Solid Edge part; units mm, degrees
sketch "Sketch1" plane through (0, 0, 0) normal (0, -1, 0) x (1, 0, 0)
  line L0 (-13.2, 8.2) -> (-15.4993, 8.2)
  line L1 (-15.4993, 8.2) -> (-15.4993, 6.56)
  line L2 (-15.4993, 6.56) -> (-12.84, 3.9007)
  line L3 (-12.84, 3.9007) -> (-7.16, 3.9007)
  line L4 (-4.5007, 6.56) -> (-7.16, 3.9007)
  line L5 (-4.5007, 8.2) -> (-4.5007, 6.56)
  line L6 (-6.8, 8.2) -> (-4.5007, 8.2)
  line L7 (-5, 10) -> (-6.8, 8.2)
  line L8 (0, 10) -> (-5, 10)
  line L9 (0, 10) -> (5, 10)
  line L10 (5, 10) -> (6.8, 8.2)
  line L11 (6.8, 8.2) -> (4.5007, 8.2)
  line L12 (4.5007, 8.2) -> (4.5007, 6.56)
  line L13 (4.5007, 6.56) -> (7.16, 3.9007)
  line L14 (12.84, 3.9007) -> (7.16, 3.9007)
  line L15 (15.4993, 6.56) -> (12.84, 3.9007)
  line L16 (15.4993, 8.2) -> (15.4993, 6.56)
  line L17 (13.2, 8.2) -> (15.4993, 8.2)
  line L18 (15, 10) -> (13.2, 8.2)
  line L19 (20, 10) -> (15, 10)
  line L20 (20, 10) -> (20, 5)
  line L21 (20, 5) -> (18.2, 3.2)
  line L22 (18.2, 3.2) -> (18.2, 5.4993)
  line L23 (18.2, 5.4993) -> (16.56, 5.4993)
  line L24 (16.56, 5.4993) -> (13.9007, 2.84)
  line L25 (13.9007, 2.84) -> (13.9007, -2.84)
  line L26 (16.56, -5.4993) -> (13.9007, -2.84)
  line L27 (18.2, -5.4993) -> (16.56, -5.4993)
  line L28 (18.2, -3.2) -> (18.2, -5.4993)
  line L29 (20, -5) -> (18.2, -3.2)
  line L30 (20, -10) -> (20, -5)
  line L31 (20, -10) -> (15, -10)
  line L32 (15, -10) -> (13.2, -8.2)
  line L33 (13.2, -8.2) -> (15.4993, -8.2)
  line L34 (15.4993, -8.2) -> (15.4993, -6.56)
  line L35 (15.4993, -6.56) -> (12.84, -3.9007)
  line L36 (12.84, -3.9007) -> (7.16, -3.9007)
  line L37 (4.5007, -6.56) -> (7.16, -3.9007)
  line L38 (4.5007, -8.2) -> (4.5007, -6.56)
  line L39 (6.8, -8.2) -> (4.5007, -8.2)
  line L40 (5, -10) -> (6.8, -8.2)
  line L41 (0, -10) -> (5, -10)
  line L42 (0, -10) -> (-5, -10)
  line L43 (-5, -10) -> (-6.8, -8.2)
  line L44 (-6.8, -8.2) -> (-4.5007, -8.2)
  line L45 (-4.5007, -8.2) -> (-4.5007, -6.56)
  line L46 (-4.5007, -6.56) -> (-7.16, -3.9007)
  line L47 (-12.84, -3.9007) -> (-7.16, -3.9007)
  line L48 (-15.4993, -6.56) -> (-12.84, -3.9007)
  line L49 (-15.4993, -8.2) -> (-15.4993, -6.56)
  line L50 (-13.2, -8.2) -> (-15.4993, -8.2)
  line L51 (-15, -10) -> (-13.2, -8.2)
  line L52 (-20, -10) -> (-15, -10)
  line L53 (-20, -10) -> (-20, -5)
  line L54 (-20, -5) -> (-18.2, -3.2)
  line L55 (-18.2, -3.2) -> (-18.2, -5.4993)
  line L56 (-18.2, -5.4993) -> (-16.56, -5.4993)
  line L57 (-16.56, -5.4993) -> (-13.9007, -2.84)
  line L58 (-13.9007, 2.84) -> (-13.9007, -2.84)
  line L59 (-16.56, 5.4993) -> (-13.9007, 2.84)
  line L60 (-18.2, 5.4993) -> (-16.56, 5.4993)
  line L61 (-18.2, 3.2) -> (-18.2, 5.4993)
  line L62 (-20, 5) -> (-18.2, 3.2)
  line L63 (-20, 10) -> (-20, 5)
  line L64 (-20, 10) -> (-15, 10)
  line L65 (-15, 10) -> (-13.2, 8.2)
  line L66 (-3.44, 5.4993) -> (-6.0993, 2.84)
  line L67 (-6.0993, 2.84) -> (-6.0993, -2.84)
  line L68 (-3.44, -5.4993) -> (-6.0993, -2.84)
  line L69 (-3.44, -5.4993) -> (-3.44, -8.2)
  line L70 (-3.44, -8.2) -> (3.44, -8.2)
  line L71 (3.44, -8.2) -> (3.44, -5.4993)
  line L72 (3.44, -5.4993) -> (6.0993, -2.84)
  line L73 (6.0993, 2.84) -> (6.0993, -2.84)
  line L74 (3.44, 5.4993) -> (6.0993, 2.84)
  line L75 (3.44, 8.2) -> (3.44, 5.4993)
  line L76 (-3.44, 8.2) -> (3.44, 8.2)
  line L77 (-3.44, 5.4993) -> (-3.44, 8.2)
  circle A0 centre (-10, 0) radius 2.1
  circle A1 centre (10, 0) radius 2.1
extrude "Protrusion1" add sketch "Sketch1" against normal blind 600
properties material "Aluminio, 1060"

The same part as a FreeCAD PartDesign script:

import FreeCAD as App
import Part
import Sketcher

V = App.Vector
Q = App.Units.Quantity

doc = App.newDocument("Part")
body = doc.addObject("PartDesign::Body", "Body")

sketch1 = body.newObject("Sketcher::SketchObject", "Sketch")
sketch1.AttachmentSupport = (doc.getObject("XZ_Plane"), [""])
sketch1.MapMode = "FlatFace"
sketch1.addGeometry([
    Part.LineSegment(V(-15.5, 8.2, 0), V(-13.2, 8.2, 0)),
    Part.LineSegment(V(-13.2, 8.2, 0), V(-15, 10, 0)),
    Part.LineSegment(V(-15, 10, 0), V(-20, 10, 0)),
    Part.LineSegment(V(-20, 10, 0), V(-20, 5, 0)),
    Part.LineSegment(V(-20, 5, 0), V(-18.2, 3.2, 0)),
    Part.LineSegment(V(-18.2, 3.2, 0), V(-18.2, 5.5, 0)),
    Part.LineSegment(V(-18.2, 5.5, 0), V(-16.6, 5.5, 0)),
    Part.LineSegment(V(-16.6, 5.5, 0), V(-13.9, 2.8, 0)),
    Part.LineSegment(V(-13.9, 2.8, 0), V(-13.9, -2.8, 0)),
    Part.LineSegment(V(-13.9, -2.8, 0), V(-16.6, -5.5, 0)),
    Part.LineSegment(V(-16.6, -5.5, 0), V(-18.2, -5.5, 0)),
    Part.LineSegment(V(-18.2, -5.5, 0), V(-18.2, -3.2, 0)),
    Part.LineSegment(V(-18.2, -3.2, 0), V(-20, -5, 0)),
    Part.LineSegment(V(-20, -5, 0), V(-20, -10, 0)),
    Part.LineSegment(V(-20, -10, 0), V(-15, -10, 0)),
    Part.LineSegment(V(-15, -10, 0), V(-13.2, -8.2, 0)),
    Part.LineSegment(V(-13.2, -8.2, 0), V(-15.5, -8.2, 0)),
    Part.LineSegment(V(-15.5, -8.2, 0), V(-15.5, -6.6, 0)),
    Part.LineSegment(V(-15.5, -6.6, 0), V(-12.8, -3.9, 0)),
    Part.LineSegment(V(-12.8, -3.9, 0), V(-7.2, -3.9, 0)),
    Part.LineSegment(V(-7.2, -3.9, 0), V(-4.5, -6.6, 0)),
    Part.LineSegment(V(-4.5, -6.6, 0), V(-4.5, -8.2, 0)),
    Part.LineSegment(V(-4.5, -8.2, 0), V(-6.8, -8.2, 0)),
    Part.LineSegment(V(-6.8, -8.2, 0), V(-5, -10, 0)),
    Part.LineSegment(V(-5, -10, 0), V(5, -10, 0)),
    Part.LineSegment(V(5, -10, 0), V(6.8, -8.2, 0)),
    Part.LineSegment(V(6.8, -8.2, 0), V(4.5, -8.2, 0)),
    Part.LineSegment(V(4.5, -8.2, 0), V(4.5, -6.6, 0)),
    Part.LineSegment(V(4.5, -6.6, 0), V(7.2, -3.9, 0)),
    Part.LineSegment(V(7.2, -3.9, 0), V(12.8, -3.9, 0)),
    Part.LineSegment(V(12.8, -3.9, 0), V(15.5, -6.6, 0)),
    Part.LineSegment(V(15.5, -6.6, 0), V(15.5, -8.2, 0)),
    Part.LineSegment(V(15.5, -8.2, 0), V(13.2, -8.2, 0)),
    Part.LineSegment(V(13.2, -8.2, 0), V(15, -10, 0)),
    Part.LineSegment(V(15, -10, 0), V(20, -10, 0)),
    Part.LineSegment(V(20, -10, 0), V(20, -5, 0)),
    Part.LineSegment(V(20, -5, 0), V(18.2, -3.2, 0)),
    Part.LineSegment(V(18.2, -3.2, 0), V(18.2, -5.5, 0)),
    Part.LineSegment(V(18.2, -5.5, 0), V(16.6, -5.5, 0)),
    Part.LineSegment(V(16.6, -5.5, 0), V(13.9, -2.8, 0)),
    Part.LineSegment(V(13.9, -2.8, 0), V(13.9, 2.8, 0)),
    Part.LineSegment(V(13.9, 2.8, 0), V(16.6, 5.5, 0)),
    Part.LineSegment(V(16.6, 5.5, 0), V(18.2, 5.5, 0)),
    Part.LineSegment(V(18.2, 5.5, 0), V(18.2, 3.2, 0)),
    Part.LineSegment(V(18.2, 3.2, 0), V(20, 5, 0)),
    Part.LineSegment(V(20, 5, 0), V(20, 10, 0)),
    Part.LineSegment(V(20, 10, 0), V(15, 10, 0)),
    Part.LineSegment(V(15, 10, 0), V(13.2, 8.2, 0)),
    Part.LineSegment(V(13.2, 8.2, 0), V(15.5, 8.2, 0)),
    Part.LineSegment(V(15.5, 8.2, 0), V(15.5, 6.6, 0)),
    Part.LineSegment(V(15.5, 6.6, 0), V(12.8, 3.9, 0)),
    Part.LineSegment(V(12.8, 3.9, 0), V(7.2, 3.9, 0)),
    Part.LineSegment(V(7.2, 3.9, 0), V(4.5, 6.6, 0)),
    Part.LineSegment(V(4.5, 6.6, 0), V(4.5, 8.2, 0)),
    Part.LineSegment(V(4.5, 8.2, 0), V(6.8, 8.2, 0)),
    Part.LineSegment(V(6.8, 8.2, 0), V(5, 10, 0)),
    Part.LineSegment(V(5, 10, 0), V(-5, 10, 0)),
    Part.LineSegment(V(-5, 10, 0), V(-6.8, 8.2, 0)),
    Part.LineSegment(V(-6.8, 8.2, 0), V(-4.5, 8.2, 0)),
    Part.LineSegment(V(-4.5, 8.2, 0), V(-4.5, 6.6, 0)),
    Part.LineSegment(V(-4.5, 6.6, 0), V(-7.2, 3.9, 0)),
    Part.LineSegment(V(-7.2, 3.9, 0), V(-12.8, 3.9, 0)),
    Part.LineSegment(V(-12.8, 3.9, 0), V(-15.5, 6.6, 0)),
    Part.LineSegment(V(-15.5, 6.6, 0), V(-15.5, 8.2, 0)),
    Part.Circle(V(-10, 0, 0), V(0, 0, 1), 2.1),
    Part.LineSegment(V(-6.1, 2.8, 0), V(-3.4, 5.5, 0)),
    Part.LineSegment(V(-3.4, 5.5, 0), V(-3.4, 8.2, 0)),
    Part.LineSegment(V(-3.4, 8.2, 0), V(3.4, 8.2, 0)),
    Part.LineSegment(V(3.4, 8.2, 0), V(3.4, 5.5, 0)),
    Part.LineSegment(V(3.4, 5.5, 0), V(6.1, 2.8, 0)),
    Part.LineSegment(V(6.1, 2.8, 0), V(6.1, -2.8, 0)),
    Part.LineSegment(V(6.1, -2.8, 0), V(3.4, -5.5, 0)),
    Part.LineSegment(V(3.4, -5.5, 0), V(3.4, -8.2, 0)),
    Part.LineSegment(V(3.4, -8.2, 0), V(-3.4, -8.2, 0)),
    Part.LineSegment(V(-3.4, -8.2, 0), V(-3.4, -5.5, 0)),
    Part.LineSegment(V(-3.4, -5.5, 0), V(-6.1, -2.8, 0)),
    Part.LineSegment(V(-6.1, -2.8, 0), V(-6.1, 2.8, 0)),
    Part.Circle(V(10, 0, 0), V(0, 0, 1), 2.1),
], False)
sketch1.addConstraint([
    Sketcher.Constraint("Coincident", 0, 2, 1, 1),
    Sketcher.Constraint("Coincident", 1, 2, 2, 1),
    Sketcher.Constraint("Coincident", 2, 2, 3, 1),
    Sketcher.Constraint("Coincident", 3, 2, 4, 1),
    Sketcher.Constraint("Coincident", 4, 2, 5, 1),
    Sketcher.Constraint("Coincident", 5, 2, 6, 1),
    Sketcher.Constraint("Coincident", 6, 2, 7, 1),
    Sketcher.Constraint("Coincident", 7, 2, 8, 1),
    Sketcher.Constraint("Coincident", 8, 2, 9, 1),
    Sketcher.Constraint("Coincident", 9, 2, 10, 1),
    Sketcher.Constraint("Coincident", 10, 2, 11, 1),
    Sketcher.Constraint("Coincident", 11, 2, 12, 1),
    Sketcher.Constraint("Coincident", 12, 2, 13, 1),
    Sketcher.Constraint("Coincident", 13, 2, 14, 1),
    Sketcher.Constraint("Coincident", 14, 2, 15, 1),
    Sketcher.Constraint("Coincident", 15, 2, 16, 1),
    Sketcher.Constraint("Coincident", 16, 2, 17, 1),
    Sketcher.Constraint("Coincident", 17, 2, 18, 1),
    Sketcher.Constraint("Coincident", 18, 2, 19, 1),
    Sketcher.Constraint("Coincident", 19, 2, 20, 1),
    Sketcher.Constraint("Coincident", 20, 2, 21, 1),
    Sketcher.Constraint("Coincident", 21, 2, 22, 1),
    Sketcher.Constraint("Coincident", 22, 2, 23, 1),
    Sketcher.Constraint("Coincident", 23, 2, 24, 1),
    Sketcher.Constraint("Coincident", 24, 2, 25, 1),
    Sketcher.Constraint("Coincident", 25, 2, 26, 1),
    Sketcher.Constraint("Coincident", 26, 2, 27, 1),
    Sketcher.Constraint("Coincident", 27, 2, 28, 1),
    Sketcher.Constraint("Coincident", 28, 2, 29, 1),
    Sketcher.Constraint("Coincident", 29, 2, 30, 1),
    Sketcher.Constraint("Coincident", 30, 2, 31, 1),
    Sketcher.Constraint("Coincident", 31, 2, 32, 1),
    Sketcher.Constraint("Coincident", 32, 2, 33, 1),
    Sketcher.Constraint("Coincident", 33, 2, 34, 1),
    Sketcher.Constraint("Coincident", 34, 2, 35, 1),
    Sketcher.Constraint("Coincident", 35, 2, 36, 1),
    Sketcher.Constraint("Coincident", 36, 2, 37, 1),
    Sketcher.Constraint("Coincident", 37, 2, 38, 1),
    Sketcher.Constraint("Coincident", 38, 2, 39, 1),
    Sketcher.Constraint("Coincident", 39, 2, 40, 1),
    Sketcher.Constraint("Coincident", 40, 2, 41, 1),
    Sketcher.Constraint("Coincident", 41, 2, 42, 1),
    Sketcher.Constraint("Coincident", 42, 2, 43, 1),
    Sketcher.Constraint("Coincident", 43, 2, 44, 1),
    Sketcher.Constraint("Coincident", 44, 2, 45, 1),
    Sketcher.Constraint("Coincident", 45, 2, 46, 1),
    Sketcher.Constraint("Coincident", 46, 2, 47, 1),
    Sketcher.Constraint("Coincident", 47, 2, 48, 1),
    Sketcher.Constraint("Coincident", 48, 2, 49, 1),
    Sketcher.Constraint("Coincident", 49, 2, 50, 1),
    Sketcher.Constraint("Coincident", 50, 2, 51, 1),
    Sketcher.Constraint("Coincident", 51, 2, 52, 1),
    Sketcher.Constraint("Coincident", 52, 2, 53, 1),
    Sketcher.Constraint("Coincident", 53, 2, 54, 1),
    Sketcher.Constraint("Coincident", 54, 2, 55, 1),
    Sketcher.Constraint("Coincident", 55, 2, 56, 1),
    Sketcher.Constraint("Coincident", 56, 2, 57, 1),
    Sketcher.Constraint("Coincident", 57, 2, 58, 1),
    Sketcher.Constraint("Coincident", 58, 2, 59, 1),
    Sketcher.Constraint("Coincident", 59, 2, 60, 1),
    Sketcher.Constraint("Coincident", 60, 2, 61, 1),
    Sketcher.Constraint("Coincident", 61, 2, 62, 1),
    Sketcher.Constraint("Coincident", 62, 2, 63, 1),
    Sketcher.Constraint("Coincident", 63, 2, 0, 1),
    Sketcher.Constraint("Coincident", 65, 2, 66, 1),
    Sketcher.Constraint("Coincident", 66, 2, 67, 1),
    Sketcher.Constraint("Coincident", 67, 2, 68, 1),
    Sketcher.Constraint("Coincident", 68, 2, 69, 1),
    Sketcher.Constraint("Coincident", 69, 2, 70, 1),
    Sketcher.Constraint("Coincident", 70, 2, 71, 1),
    Sketcher.Constraint("Coincident", 71, 2, 72, 1),
    Sketcher.Constraint("Coincident", 72, 2, 73, 1),
    Sketcher.Constraint("Coincident", 73, 2, 74, 1),
    Sketcher.Constraint("Coincident", 74, 2, 75, 1),
    Sketcher.Constraint("Coincident", 75, 2, 76, 1),
    Sketcher.Constraint("Coincident", 76, 2, 65, 1),
    Sketcher.Constraint("Horizontal", 0),
    Sketcher.Constraint("Horizontal", 2),
    Sketcher.Constraint("Vertical", 3),
    Sketcher.Constraint("Vertical", 5),
    Sketcher.Constraint("Horizontal", 6),
    Sketcher.Constraint("Vertical", 8),
    Sketcher.Constraint("Horizontal", 10),
    Sketcher.Constraint("Vertical", 11),
    Sketcher.Constraint("Vertical", 13),
    Sketcher.Constraint("Horizontal", 14),
    Sketcher.Constraint("Horizontal", 16),
    Sketcher.Constraint("Vertical", 17),
    Sketcher.Constraint("Horizontal", 19),
    Sketcher.Constraint("Vertical", 21),
    Sketcher.Constraint("Horizontal", 22),
    Sketcher.Constraint("Horizontal", 24),
    Sketcher.Constraint("Horizontal", 26),
    Sketcher.Constraint("Vertical", 27),
    Sketcher.Constraint("Horizontal", 29),
    Sketcher.Constraint("Vertical", 31),
    Sketcher.Constraint("Horizontal", 32),
    Sketcher.Constraint("Horizontal", 34),
    Sketcher.Constraint("Vertical", 35),
    Sketcher.Constraint("Vertical", 37),
    Sketcher.Constraint("Horizontal", 38),
    Sketcher.Constraint("Vertical", 40),
    Sketcher.Constraint("Horizontal", 42),
    Sketcher.Constraint("Vertical", 43),
    Sketcher.Constraint("Vertical", 45),
    Sketcher.Constraint("Horizontal", 46),
    Sketcher.Constraint("Horizontal", 48),
    Sketcher.Constraint("Vertical", 49),
    Sketcher.Constraint("Horizontal", 51),
    Sketcher.Constraint("Vertical", 53),
    Sketcher.Constraint("Horizontal", 54),
    Sketcher.Constraint("Horizontal", 56),
    Sketcher.Constraint("Horizontal", 58),
    Sketcher.Constraint("Vertical", 59),
    Sketcher.Constraint("Horizontal", 61),
    Sketcher.Constraint("Vertical", 63),
    Sketcher.Constraint("Vertical", 66),
    Sketcher.Constraint("Horizontal", 67),
    Sketcher.Constraint("Vertical", 68),
    Sketcher.Constraint("Vertical", 70),
    Sketcher.Constraint("Vertical", 72),
    Sketcher.Constraint("Horizontal", 73),
    Sketcher.Constraint("Vertical", 74),
    Sketcher.Constraint("Vertical", 76),
    Sketcher.Constraint("Equal", 64, 77),
    Sketcher.Constraint("Symmetric", 64, 3, 77, 3, -1, 1),
    Sketcher.Constraint("Symmetric", 0, 2, 32, 2, -1, 1),
    Sketcher.Constraint("Symmetric", 1, 2, 33, 2, -1, 1),
    Sketcher.Constraint("Symmetric", 3, 2, 35, 2, -1, 1),
    Sketcher.Constraint("Symmetric", 4, 2, 36, 2, -1, 1),
    Sketcher.Constraint("Symmetric", 6, 2, 38, 2, -1, 1),
    Sketcher.Constraint("Symmetric", 7, 2, 39, 2, -1, 1),
    Sketcher.Constraint("Symmetric", 9, 2, 41, 2, -1, 1),
    Sketcher.Constraint("Symmetric", 11, 2, 43, 2, -1, 1),
    Sketcher.Constraint("Symmetric", 12, 2, 44, 2, -1, 1),
    Sketcher.Constraint("Symmetric", 14, 2, 46, 2, -1, 1),
    Sketcher.Constraint("Symmetric", 15, 2, 47, 2, -1, 1),
    Sketcher.Constraint("Symmetric", 17, 2, 49, 2, -1, 1),
    Sketcher.Constraint("Symmetric", 18, 2, 50, 2, -1, 1),
    Sketcher.Constraint("Symmetric", 20, 2, 52, 2, -1, 1),
    Sketcher.Constraint("Symmetric", 22, 2, 54, 2, -1, 1),
    Sketcher.Constraint("Symmetric", 23, 2, 55, 2, -1, 1),
    Sketcher.Constraint("Symmetric", 25, 2, 57, 2, -1, 1),
    Sketcher.Constraint("Symmetric", 27, 2, 59, 2, -1, 1),
    Sketcher.Constraint("Symmetric", 28, 2, 60, 2, -1, 1),
    Sketcher.Constraint("Symmetric", 30, 2, 62, 2, -1, 1),
    Sketcher.Constraint("Symmetric", 65, 2, 71, 2, -1, 1),
    Sketcher.Constraint("Symmetric", 67, 2, 73, 2, -1, 1),
    Sketcher.Constraint("Symmetric", 69, 2, 75, 2, -1, 1),
    Sketcher.Constraint("Symmetric", 22, 2, 25, 2, -2),
    Sketcher.Constraint("Symmetric", 20, 2, 27, 2, -2),
    Sketcher.Constraint("Symmetric", 19, 2, 28, 2, -2),
    Sketcher.Constraint("Symmetric", 17, 2, 30, 2, -2),
    Sketcher.Constraint("Symmetric", 15, 2, 32, 2, -2),
    Sketcher.Constraint("Symmetric", 14, 2, 33, 2, -2),
    Sketcher.Constraint("Symmetric", 12, 2, 35, 2, -2),
    Sketcher.Constraint("Symmetric", 11, 2, 36, 2, -2),
    Sketcher.Constraint("Symmetric", 9, 2, 38, 2, -2),
    Sketcher.Constraint("Symmetric", 65, 2, 68, 2, -2),
    Sketcher.Constraint("PointOnObject", 64, 3, -1),
    Sketcher.Constraint("Parallel", 1, 4),
    Sketcher.Constraint("Parallel", 4, 7),
    Sketcher.Constraint("Perpendicular", 7, 9),
    Sketcher.Constraint("Parallel", 9, 12),
    Sketcher.Constraint("Parallel", 15, 18),
    Sketcher.Constraint("Perpendicular", 18, 20),
    Sketcher.Constraint("Parallel", 20, 23),
    Sketcher.Constraint("Perpendicular", 23, 25),
    Sketcher.Constraint("Perpendicular", 28, 30),
    Sketcher.Constraint("Perpendicular", 39, 41),
    Sketcher.Constraint("Perpendicular", 50, 52),
    Sketcher.Constraint("Perpendicular", 55, 57),
    Sketcher.Constraint("Perpendicular", 60, 62),
    Sketcher.Constraint("Perpendicular", 62, 65),
    Sketcher.Constraint("Perpendicular", 65, 69),
    Sketcher.Constraint("Perpendicular", 69, 71),
    Sketcher.Constraint("Perpendicular", 71, 75),
    Sketcher.Constraint("Horizontal", 17, 2, 20, 2),
    Sketcher.Constraint("Horizontal", 16, 2, 21, 2),
    Sketcher.Constraint("Horizontal", 14, 2, 23, 2),
    Sketcher.Constraint("Horizontal", 42, 2, 65, 2),
    Sketcher.Constraint("Horizontal", 63, 2, 66, 2),
    Sketcher.Constraint("Horizontal", 40, 2, 69, 2),
    Sketcher.Constraint("Equal", 16, 22),
    Sketcher.Constraint("Equal", 46, 3),
    Sketcher.Constraint("Equal", 58, 5),
    Sketcher.Constraint("Equal", 61, 8),
    Sketcher.Constraint("Equal", 42, 17),
    Sketcher.Constraint("Equal", 1, 4),
    Sketcher.Constraint("Equal", 9, 18),
    Sketcher.Constraint("Diameter", 64, Q("4.2 mm")),
    Sketcher.Constraint("DistanceX", 2, 2, 2, 1, Q("5 mm")),
    Sketcher.Constraint("DistanceX", 24, 1, 24, 2, Q("10 mm")),
    Sketcher.Constraint("DistanceX", 64, 3, -1, 1, Q("10 mm")),
    Sketcher.Constraint("DistanceX", 1, 2, -1, 1, Q("15 mm")),
    Sketcher.Constraint("DistanceX", 6, 1, 6, 2, Q("1.64 mm")),
    Sketcher.Constraint("DistanceX", 19, 1, 19, 2, Q("5.68 mm")),
    Sketcher.Constraint("DistanceX", 67, 1, 67, 2, Q("6.88 mm")),
    Sketcher.Constraint("DistanceX", 0, 2, -1, 1, Q("13.2 mm")),
    Sketcher.Constraint("DistanceX", 0, 1, 0, 2, Q("2.2993 mm")),
])
pad1 = body.newObject("PartDesign::Pad", "Pad")
pad1.Profile = sketch1
pad1.Length = 600
pad1.Reversed = True

doc.recompute()
